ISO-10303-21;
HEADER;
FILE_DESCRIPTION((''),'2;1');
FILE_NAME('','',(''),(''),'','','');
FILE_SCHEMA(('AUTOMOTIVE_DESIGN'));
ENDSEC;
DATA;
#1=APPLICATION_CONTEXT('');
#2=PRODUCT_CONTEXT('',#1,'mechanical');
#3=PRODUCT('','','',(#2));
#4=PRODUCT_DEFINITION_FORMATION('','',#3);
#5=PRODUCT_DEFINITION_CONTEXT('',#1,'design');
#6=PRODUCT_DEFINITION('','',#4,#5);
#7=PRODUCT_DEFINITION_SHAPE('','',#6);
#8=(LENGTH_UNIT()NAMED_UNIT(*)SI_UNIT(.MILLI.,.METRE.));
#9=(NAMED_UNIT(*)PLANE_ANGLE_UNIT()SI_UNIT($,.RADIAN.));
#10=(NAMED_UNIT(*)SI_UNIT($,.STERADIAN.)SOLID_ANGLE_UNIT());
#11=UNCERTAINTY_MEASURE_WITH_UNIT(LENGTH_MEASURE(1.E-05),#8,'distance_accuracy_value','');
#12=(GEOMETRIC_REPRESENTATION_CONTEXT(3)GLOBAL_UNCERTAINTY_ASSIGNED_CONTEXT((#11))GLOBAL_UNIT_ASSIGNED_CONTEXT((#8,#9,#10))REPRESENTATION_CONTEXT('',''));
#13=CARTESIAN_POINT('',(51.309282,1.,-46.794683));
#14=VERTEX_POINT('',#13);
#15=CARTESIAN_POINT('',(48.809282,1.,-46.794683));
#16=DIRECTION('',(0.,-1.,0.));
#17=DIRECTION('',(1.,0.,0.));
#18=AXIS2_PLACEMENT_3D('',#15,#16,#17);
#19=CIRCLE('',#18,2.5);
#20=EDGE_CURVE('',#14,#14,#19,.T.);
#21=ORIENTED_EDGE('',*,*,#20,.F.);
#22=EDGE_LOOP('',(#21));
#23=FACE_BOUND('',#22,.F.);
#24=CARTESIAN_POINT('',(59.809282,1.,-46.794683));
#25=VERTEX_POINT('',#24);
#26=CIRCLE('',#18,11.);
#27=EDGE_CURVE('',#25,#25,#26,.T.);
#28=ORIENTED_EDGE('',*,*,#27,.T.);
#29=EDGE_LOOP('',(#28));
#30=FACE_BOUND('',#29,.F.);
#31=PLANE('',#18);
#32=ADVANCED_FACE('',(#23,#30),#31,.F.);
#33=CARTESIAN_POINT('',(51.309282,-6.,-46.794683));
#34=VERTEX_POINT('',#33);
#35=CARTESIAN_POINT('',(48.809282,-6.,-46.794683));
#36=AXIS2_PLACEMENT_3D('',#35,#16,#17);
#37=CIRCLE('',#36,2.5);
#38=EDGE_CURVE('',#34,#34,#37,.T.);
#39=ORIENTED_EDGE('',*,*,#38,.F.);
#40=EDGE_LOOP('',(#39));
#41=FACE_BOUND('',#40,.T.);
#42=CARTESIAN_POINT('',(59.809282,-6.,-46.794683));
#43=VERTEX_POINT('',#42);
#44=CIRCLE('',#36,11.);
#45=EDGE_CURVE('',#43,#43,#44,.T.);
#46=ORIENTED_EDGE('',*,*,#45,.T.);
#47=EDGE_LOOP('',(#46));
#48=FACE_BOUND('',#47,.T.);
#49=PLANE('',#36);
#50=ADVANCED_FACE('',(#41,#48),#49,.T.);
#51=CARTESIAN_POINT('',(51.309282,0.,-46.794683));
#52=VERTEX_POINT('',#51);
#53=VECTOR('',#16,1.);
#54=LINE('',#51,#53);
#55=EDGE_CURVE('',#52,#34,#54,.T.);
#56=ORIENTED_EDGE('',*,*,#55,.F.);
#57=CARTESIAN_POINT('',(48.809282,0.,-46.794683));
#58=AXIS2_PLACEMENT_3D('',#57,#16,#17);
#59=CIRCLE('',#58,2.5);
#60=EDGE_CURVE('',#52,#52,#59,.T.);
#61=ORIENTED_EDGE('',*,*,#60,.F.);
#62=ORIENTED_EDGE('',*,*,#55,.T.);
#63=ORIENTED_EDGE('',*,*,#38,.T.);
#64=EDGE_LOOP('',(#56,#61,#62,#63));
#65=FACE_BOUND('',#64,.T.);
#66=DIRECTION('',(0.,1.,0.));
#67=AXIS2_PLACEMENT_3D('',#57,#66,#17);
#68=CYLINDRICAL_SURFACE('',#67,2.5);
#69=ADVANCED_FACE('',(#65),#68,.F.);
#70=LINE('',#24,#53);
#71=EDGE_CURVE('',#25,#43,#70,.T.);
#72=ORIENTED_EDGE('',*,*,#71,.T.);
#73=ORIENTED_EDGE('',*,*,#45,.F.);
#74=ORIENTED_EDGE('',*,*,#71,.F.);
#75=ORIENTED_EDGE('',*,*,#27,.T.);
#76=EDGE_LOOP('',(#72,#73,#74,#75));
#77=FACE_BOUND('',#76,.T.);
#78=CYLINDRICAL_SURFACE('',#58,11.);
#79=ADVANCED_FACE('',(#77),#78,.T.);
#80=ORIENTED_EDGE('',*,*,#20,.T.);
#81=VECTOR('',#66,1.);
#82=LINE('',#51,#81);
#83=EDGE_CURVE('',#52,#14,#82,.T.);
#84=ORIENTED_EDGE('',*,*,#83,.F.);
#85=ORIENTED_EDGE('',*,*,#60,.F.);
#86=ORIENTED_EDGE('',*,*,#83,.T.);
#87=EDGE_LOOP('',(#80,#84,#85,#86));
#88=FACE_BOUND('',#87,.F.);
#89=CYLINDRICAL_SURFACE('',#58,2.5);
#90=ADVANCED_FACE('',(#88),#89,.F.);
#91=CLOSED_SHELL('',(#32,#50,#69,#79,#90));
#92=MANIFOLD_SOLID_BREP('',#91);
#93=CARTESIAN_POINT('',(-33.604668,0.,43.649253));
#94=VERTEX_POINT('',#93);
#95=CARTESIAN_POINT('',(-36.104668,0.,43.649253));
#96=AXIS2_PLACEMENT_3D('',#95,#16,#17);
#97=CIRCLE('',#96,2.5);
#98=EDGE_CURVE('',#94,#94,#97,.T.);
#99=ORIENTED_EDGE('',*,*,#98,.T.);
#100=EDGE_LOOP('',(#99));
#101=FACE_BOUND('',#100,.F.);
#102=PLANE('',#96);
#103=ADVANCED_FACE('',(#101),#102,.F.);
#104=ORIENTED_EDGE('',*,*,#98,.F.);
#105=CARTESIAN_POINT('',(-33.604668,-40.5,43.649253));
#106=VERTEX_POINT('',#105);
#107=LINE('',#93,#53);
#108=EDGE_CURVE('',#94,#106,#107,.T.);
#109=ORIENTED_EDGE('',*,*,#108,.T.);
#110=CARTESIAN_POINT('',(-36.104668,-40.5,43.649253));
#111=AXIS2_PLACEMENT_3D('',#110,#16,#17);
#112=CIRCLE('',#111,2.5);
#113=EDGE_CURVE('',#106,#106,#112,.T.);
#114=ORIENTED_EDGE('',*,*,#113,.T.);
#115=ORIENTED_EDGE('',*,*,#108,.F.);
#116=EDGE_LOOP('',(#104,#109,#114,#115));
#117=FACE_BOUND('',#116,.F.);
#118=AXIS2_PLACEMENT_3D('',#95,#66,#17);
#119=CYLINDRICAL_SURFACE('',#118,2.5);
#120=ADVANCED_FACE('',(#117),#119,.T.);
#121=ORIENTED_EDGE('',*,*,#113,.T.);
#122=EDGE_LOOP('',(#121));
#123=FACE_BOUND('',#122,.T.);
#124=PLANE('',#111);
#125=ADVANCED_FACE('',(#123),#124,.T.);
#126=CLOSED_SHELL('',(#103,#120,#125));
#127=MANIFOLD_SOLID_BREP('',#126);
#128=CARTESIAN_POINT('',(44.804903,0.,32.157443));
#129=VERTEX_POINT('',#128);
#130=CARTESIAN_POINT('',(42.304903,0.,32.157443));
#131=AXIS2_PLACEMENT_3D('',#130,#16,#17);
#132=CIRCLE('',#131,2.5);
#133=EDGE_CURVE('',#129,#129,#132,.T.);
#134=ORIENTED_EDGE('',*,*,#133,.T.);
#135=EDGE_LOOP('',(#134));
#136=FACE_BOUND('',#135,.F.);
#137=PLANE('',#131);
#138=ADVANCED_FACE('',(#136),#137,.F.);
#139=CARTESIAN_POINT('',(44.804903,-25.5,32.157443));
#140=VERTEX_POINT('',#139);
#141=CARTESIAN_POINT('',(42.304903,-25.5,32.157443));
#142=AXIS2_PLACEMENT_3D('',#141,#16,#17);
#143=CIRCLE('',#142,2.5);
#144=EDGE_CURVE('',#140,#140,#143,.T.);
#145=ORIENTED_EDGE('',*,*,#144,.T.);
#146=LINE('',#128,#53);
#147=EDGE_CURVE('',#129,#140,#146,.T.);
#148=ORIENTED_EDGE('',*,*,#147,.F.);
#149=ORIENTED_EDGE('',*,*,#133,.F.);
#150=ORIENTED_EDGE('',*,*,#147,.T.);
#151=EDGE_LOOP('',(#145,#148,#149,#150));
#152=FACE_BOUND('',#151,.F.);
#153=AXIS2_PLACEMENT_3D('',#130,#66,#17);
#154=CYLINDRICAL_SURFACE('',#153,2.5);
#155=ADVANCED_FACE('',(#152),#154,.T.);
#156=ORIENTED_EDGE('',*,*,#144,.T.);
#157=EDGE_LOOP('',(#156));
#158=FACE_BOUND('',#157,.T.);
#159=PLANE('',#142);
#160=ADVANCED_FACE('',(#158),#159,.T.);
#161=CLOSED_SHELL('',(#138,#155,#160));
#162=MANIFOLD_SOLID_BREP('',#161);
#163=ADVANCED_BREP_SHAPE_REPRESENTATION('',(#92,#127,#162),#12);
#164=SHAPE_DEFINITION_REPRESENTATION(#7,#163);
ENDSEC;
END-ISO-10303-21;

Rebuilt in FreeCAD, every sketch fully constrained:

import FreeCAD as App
import Part
import Sketcher

doc = App.newDocument("Part")
body = doc.addObject("PartDesign::Body", "Body")

sketch1 = body.newObject("Sketcher::SketchObject", "Sketch")
sketch1.AttachmentSupport = (doc.getObject("XZ_Plane"), [""])
sketch1.MapMode = "FlatFace"
sketch1.addGeometry([
    Part.Circle(App.Vector(48.8, -46.8, 0), App.Vector(0, 0, 1), 11),
    Part.Circle(App.Vector(48.8, -46.8, 0), App.Vector(0, 0, 1), 2.5),
], False)
sketch1.addConstraint([
    Sketcher.Constraint("Coincident", 1, 3, 0, 3),
    Sketcher.Constraint("Diameter", 0, 22.0),
    Sketcher.Constraint("Diameter", 1, 5.0),
    Sketcher.Constraint("DistanceX", -1, 1, 0, 3, 48.809282),
    Sketcher.Constraint("DistanceY", 0, 3, -1, 1, 46.794683),
])
pad1 = body.newObject("PartDesign::Pad", "Pad")
pad1.Profile = sketch1
pad1.Type = "TwoLengths"
pad1.Length = 6
pad1.Length2 = 1
body2 = doc.addObject("PartDesign::Body", "Body001")

sketch2 = body2.newObject("Sketcher::SketchObject", "Sketch001")
sketch2.AttachmentSupport = (doc.getObject("XZ_Plane001"), [""])
sketch2.MapMode = "FlatFace"
sketch2.addGeometry(Part.Circle(App.Vector(42.3, 32.2, 0), App.Vector(0, 0, 1), 2.5), False)
sketch2.addConstraint([
    Sketcher.Constraint("Diameter", 0, 5.0),
    Sketcher.Constraint("DistanceX", -1, 1, 0, 3, 42.304903),
    Sketcher.Constraint("DistanceY", -1, 1, 0, 3, 32.157443),
])
pad2 = body2.newObject("PartDesign::Pad", "Pad001")
pad2.Profile = sketch2
pad2.Length = 25.5
body3 = doc.addObject("PartDesign::Body", "Body002")

sketch3 = body3.newObject("Sketcher::SketchObject", "Sketch002")
sketch3.AttachmentSupport = (doc.getObject("XZ_Plane002"), [""])
sketch3.MapMode = "FlatFace"
sketch3.addGeometry(Part.Circle(App.Vector(-36.1, 43.6, 0), App.Vector(0, 0, 1), 2.5), False)
sketch3.addConstraint([
    Sketcher.Constraint("Diameter", 0, 5.0),
    Sketcher.Constraint("DistanceX", 0, 3, -1, 1, 36.104668),
    Sketcher.Constraint("DistanceY", -1, 1, 0, 3, 43.649253),
])
pad3 = body3.newObject("PartDesign::Pad", "Pad002")
pad3.Profile = sketch3
pad3.Length = 40.5

doc.recompute()
